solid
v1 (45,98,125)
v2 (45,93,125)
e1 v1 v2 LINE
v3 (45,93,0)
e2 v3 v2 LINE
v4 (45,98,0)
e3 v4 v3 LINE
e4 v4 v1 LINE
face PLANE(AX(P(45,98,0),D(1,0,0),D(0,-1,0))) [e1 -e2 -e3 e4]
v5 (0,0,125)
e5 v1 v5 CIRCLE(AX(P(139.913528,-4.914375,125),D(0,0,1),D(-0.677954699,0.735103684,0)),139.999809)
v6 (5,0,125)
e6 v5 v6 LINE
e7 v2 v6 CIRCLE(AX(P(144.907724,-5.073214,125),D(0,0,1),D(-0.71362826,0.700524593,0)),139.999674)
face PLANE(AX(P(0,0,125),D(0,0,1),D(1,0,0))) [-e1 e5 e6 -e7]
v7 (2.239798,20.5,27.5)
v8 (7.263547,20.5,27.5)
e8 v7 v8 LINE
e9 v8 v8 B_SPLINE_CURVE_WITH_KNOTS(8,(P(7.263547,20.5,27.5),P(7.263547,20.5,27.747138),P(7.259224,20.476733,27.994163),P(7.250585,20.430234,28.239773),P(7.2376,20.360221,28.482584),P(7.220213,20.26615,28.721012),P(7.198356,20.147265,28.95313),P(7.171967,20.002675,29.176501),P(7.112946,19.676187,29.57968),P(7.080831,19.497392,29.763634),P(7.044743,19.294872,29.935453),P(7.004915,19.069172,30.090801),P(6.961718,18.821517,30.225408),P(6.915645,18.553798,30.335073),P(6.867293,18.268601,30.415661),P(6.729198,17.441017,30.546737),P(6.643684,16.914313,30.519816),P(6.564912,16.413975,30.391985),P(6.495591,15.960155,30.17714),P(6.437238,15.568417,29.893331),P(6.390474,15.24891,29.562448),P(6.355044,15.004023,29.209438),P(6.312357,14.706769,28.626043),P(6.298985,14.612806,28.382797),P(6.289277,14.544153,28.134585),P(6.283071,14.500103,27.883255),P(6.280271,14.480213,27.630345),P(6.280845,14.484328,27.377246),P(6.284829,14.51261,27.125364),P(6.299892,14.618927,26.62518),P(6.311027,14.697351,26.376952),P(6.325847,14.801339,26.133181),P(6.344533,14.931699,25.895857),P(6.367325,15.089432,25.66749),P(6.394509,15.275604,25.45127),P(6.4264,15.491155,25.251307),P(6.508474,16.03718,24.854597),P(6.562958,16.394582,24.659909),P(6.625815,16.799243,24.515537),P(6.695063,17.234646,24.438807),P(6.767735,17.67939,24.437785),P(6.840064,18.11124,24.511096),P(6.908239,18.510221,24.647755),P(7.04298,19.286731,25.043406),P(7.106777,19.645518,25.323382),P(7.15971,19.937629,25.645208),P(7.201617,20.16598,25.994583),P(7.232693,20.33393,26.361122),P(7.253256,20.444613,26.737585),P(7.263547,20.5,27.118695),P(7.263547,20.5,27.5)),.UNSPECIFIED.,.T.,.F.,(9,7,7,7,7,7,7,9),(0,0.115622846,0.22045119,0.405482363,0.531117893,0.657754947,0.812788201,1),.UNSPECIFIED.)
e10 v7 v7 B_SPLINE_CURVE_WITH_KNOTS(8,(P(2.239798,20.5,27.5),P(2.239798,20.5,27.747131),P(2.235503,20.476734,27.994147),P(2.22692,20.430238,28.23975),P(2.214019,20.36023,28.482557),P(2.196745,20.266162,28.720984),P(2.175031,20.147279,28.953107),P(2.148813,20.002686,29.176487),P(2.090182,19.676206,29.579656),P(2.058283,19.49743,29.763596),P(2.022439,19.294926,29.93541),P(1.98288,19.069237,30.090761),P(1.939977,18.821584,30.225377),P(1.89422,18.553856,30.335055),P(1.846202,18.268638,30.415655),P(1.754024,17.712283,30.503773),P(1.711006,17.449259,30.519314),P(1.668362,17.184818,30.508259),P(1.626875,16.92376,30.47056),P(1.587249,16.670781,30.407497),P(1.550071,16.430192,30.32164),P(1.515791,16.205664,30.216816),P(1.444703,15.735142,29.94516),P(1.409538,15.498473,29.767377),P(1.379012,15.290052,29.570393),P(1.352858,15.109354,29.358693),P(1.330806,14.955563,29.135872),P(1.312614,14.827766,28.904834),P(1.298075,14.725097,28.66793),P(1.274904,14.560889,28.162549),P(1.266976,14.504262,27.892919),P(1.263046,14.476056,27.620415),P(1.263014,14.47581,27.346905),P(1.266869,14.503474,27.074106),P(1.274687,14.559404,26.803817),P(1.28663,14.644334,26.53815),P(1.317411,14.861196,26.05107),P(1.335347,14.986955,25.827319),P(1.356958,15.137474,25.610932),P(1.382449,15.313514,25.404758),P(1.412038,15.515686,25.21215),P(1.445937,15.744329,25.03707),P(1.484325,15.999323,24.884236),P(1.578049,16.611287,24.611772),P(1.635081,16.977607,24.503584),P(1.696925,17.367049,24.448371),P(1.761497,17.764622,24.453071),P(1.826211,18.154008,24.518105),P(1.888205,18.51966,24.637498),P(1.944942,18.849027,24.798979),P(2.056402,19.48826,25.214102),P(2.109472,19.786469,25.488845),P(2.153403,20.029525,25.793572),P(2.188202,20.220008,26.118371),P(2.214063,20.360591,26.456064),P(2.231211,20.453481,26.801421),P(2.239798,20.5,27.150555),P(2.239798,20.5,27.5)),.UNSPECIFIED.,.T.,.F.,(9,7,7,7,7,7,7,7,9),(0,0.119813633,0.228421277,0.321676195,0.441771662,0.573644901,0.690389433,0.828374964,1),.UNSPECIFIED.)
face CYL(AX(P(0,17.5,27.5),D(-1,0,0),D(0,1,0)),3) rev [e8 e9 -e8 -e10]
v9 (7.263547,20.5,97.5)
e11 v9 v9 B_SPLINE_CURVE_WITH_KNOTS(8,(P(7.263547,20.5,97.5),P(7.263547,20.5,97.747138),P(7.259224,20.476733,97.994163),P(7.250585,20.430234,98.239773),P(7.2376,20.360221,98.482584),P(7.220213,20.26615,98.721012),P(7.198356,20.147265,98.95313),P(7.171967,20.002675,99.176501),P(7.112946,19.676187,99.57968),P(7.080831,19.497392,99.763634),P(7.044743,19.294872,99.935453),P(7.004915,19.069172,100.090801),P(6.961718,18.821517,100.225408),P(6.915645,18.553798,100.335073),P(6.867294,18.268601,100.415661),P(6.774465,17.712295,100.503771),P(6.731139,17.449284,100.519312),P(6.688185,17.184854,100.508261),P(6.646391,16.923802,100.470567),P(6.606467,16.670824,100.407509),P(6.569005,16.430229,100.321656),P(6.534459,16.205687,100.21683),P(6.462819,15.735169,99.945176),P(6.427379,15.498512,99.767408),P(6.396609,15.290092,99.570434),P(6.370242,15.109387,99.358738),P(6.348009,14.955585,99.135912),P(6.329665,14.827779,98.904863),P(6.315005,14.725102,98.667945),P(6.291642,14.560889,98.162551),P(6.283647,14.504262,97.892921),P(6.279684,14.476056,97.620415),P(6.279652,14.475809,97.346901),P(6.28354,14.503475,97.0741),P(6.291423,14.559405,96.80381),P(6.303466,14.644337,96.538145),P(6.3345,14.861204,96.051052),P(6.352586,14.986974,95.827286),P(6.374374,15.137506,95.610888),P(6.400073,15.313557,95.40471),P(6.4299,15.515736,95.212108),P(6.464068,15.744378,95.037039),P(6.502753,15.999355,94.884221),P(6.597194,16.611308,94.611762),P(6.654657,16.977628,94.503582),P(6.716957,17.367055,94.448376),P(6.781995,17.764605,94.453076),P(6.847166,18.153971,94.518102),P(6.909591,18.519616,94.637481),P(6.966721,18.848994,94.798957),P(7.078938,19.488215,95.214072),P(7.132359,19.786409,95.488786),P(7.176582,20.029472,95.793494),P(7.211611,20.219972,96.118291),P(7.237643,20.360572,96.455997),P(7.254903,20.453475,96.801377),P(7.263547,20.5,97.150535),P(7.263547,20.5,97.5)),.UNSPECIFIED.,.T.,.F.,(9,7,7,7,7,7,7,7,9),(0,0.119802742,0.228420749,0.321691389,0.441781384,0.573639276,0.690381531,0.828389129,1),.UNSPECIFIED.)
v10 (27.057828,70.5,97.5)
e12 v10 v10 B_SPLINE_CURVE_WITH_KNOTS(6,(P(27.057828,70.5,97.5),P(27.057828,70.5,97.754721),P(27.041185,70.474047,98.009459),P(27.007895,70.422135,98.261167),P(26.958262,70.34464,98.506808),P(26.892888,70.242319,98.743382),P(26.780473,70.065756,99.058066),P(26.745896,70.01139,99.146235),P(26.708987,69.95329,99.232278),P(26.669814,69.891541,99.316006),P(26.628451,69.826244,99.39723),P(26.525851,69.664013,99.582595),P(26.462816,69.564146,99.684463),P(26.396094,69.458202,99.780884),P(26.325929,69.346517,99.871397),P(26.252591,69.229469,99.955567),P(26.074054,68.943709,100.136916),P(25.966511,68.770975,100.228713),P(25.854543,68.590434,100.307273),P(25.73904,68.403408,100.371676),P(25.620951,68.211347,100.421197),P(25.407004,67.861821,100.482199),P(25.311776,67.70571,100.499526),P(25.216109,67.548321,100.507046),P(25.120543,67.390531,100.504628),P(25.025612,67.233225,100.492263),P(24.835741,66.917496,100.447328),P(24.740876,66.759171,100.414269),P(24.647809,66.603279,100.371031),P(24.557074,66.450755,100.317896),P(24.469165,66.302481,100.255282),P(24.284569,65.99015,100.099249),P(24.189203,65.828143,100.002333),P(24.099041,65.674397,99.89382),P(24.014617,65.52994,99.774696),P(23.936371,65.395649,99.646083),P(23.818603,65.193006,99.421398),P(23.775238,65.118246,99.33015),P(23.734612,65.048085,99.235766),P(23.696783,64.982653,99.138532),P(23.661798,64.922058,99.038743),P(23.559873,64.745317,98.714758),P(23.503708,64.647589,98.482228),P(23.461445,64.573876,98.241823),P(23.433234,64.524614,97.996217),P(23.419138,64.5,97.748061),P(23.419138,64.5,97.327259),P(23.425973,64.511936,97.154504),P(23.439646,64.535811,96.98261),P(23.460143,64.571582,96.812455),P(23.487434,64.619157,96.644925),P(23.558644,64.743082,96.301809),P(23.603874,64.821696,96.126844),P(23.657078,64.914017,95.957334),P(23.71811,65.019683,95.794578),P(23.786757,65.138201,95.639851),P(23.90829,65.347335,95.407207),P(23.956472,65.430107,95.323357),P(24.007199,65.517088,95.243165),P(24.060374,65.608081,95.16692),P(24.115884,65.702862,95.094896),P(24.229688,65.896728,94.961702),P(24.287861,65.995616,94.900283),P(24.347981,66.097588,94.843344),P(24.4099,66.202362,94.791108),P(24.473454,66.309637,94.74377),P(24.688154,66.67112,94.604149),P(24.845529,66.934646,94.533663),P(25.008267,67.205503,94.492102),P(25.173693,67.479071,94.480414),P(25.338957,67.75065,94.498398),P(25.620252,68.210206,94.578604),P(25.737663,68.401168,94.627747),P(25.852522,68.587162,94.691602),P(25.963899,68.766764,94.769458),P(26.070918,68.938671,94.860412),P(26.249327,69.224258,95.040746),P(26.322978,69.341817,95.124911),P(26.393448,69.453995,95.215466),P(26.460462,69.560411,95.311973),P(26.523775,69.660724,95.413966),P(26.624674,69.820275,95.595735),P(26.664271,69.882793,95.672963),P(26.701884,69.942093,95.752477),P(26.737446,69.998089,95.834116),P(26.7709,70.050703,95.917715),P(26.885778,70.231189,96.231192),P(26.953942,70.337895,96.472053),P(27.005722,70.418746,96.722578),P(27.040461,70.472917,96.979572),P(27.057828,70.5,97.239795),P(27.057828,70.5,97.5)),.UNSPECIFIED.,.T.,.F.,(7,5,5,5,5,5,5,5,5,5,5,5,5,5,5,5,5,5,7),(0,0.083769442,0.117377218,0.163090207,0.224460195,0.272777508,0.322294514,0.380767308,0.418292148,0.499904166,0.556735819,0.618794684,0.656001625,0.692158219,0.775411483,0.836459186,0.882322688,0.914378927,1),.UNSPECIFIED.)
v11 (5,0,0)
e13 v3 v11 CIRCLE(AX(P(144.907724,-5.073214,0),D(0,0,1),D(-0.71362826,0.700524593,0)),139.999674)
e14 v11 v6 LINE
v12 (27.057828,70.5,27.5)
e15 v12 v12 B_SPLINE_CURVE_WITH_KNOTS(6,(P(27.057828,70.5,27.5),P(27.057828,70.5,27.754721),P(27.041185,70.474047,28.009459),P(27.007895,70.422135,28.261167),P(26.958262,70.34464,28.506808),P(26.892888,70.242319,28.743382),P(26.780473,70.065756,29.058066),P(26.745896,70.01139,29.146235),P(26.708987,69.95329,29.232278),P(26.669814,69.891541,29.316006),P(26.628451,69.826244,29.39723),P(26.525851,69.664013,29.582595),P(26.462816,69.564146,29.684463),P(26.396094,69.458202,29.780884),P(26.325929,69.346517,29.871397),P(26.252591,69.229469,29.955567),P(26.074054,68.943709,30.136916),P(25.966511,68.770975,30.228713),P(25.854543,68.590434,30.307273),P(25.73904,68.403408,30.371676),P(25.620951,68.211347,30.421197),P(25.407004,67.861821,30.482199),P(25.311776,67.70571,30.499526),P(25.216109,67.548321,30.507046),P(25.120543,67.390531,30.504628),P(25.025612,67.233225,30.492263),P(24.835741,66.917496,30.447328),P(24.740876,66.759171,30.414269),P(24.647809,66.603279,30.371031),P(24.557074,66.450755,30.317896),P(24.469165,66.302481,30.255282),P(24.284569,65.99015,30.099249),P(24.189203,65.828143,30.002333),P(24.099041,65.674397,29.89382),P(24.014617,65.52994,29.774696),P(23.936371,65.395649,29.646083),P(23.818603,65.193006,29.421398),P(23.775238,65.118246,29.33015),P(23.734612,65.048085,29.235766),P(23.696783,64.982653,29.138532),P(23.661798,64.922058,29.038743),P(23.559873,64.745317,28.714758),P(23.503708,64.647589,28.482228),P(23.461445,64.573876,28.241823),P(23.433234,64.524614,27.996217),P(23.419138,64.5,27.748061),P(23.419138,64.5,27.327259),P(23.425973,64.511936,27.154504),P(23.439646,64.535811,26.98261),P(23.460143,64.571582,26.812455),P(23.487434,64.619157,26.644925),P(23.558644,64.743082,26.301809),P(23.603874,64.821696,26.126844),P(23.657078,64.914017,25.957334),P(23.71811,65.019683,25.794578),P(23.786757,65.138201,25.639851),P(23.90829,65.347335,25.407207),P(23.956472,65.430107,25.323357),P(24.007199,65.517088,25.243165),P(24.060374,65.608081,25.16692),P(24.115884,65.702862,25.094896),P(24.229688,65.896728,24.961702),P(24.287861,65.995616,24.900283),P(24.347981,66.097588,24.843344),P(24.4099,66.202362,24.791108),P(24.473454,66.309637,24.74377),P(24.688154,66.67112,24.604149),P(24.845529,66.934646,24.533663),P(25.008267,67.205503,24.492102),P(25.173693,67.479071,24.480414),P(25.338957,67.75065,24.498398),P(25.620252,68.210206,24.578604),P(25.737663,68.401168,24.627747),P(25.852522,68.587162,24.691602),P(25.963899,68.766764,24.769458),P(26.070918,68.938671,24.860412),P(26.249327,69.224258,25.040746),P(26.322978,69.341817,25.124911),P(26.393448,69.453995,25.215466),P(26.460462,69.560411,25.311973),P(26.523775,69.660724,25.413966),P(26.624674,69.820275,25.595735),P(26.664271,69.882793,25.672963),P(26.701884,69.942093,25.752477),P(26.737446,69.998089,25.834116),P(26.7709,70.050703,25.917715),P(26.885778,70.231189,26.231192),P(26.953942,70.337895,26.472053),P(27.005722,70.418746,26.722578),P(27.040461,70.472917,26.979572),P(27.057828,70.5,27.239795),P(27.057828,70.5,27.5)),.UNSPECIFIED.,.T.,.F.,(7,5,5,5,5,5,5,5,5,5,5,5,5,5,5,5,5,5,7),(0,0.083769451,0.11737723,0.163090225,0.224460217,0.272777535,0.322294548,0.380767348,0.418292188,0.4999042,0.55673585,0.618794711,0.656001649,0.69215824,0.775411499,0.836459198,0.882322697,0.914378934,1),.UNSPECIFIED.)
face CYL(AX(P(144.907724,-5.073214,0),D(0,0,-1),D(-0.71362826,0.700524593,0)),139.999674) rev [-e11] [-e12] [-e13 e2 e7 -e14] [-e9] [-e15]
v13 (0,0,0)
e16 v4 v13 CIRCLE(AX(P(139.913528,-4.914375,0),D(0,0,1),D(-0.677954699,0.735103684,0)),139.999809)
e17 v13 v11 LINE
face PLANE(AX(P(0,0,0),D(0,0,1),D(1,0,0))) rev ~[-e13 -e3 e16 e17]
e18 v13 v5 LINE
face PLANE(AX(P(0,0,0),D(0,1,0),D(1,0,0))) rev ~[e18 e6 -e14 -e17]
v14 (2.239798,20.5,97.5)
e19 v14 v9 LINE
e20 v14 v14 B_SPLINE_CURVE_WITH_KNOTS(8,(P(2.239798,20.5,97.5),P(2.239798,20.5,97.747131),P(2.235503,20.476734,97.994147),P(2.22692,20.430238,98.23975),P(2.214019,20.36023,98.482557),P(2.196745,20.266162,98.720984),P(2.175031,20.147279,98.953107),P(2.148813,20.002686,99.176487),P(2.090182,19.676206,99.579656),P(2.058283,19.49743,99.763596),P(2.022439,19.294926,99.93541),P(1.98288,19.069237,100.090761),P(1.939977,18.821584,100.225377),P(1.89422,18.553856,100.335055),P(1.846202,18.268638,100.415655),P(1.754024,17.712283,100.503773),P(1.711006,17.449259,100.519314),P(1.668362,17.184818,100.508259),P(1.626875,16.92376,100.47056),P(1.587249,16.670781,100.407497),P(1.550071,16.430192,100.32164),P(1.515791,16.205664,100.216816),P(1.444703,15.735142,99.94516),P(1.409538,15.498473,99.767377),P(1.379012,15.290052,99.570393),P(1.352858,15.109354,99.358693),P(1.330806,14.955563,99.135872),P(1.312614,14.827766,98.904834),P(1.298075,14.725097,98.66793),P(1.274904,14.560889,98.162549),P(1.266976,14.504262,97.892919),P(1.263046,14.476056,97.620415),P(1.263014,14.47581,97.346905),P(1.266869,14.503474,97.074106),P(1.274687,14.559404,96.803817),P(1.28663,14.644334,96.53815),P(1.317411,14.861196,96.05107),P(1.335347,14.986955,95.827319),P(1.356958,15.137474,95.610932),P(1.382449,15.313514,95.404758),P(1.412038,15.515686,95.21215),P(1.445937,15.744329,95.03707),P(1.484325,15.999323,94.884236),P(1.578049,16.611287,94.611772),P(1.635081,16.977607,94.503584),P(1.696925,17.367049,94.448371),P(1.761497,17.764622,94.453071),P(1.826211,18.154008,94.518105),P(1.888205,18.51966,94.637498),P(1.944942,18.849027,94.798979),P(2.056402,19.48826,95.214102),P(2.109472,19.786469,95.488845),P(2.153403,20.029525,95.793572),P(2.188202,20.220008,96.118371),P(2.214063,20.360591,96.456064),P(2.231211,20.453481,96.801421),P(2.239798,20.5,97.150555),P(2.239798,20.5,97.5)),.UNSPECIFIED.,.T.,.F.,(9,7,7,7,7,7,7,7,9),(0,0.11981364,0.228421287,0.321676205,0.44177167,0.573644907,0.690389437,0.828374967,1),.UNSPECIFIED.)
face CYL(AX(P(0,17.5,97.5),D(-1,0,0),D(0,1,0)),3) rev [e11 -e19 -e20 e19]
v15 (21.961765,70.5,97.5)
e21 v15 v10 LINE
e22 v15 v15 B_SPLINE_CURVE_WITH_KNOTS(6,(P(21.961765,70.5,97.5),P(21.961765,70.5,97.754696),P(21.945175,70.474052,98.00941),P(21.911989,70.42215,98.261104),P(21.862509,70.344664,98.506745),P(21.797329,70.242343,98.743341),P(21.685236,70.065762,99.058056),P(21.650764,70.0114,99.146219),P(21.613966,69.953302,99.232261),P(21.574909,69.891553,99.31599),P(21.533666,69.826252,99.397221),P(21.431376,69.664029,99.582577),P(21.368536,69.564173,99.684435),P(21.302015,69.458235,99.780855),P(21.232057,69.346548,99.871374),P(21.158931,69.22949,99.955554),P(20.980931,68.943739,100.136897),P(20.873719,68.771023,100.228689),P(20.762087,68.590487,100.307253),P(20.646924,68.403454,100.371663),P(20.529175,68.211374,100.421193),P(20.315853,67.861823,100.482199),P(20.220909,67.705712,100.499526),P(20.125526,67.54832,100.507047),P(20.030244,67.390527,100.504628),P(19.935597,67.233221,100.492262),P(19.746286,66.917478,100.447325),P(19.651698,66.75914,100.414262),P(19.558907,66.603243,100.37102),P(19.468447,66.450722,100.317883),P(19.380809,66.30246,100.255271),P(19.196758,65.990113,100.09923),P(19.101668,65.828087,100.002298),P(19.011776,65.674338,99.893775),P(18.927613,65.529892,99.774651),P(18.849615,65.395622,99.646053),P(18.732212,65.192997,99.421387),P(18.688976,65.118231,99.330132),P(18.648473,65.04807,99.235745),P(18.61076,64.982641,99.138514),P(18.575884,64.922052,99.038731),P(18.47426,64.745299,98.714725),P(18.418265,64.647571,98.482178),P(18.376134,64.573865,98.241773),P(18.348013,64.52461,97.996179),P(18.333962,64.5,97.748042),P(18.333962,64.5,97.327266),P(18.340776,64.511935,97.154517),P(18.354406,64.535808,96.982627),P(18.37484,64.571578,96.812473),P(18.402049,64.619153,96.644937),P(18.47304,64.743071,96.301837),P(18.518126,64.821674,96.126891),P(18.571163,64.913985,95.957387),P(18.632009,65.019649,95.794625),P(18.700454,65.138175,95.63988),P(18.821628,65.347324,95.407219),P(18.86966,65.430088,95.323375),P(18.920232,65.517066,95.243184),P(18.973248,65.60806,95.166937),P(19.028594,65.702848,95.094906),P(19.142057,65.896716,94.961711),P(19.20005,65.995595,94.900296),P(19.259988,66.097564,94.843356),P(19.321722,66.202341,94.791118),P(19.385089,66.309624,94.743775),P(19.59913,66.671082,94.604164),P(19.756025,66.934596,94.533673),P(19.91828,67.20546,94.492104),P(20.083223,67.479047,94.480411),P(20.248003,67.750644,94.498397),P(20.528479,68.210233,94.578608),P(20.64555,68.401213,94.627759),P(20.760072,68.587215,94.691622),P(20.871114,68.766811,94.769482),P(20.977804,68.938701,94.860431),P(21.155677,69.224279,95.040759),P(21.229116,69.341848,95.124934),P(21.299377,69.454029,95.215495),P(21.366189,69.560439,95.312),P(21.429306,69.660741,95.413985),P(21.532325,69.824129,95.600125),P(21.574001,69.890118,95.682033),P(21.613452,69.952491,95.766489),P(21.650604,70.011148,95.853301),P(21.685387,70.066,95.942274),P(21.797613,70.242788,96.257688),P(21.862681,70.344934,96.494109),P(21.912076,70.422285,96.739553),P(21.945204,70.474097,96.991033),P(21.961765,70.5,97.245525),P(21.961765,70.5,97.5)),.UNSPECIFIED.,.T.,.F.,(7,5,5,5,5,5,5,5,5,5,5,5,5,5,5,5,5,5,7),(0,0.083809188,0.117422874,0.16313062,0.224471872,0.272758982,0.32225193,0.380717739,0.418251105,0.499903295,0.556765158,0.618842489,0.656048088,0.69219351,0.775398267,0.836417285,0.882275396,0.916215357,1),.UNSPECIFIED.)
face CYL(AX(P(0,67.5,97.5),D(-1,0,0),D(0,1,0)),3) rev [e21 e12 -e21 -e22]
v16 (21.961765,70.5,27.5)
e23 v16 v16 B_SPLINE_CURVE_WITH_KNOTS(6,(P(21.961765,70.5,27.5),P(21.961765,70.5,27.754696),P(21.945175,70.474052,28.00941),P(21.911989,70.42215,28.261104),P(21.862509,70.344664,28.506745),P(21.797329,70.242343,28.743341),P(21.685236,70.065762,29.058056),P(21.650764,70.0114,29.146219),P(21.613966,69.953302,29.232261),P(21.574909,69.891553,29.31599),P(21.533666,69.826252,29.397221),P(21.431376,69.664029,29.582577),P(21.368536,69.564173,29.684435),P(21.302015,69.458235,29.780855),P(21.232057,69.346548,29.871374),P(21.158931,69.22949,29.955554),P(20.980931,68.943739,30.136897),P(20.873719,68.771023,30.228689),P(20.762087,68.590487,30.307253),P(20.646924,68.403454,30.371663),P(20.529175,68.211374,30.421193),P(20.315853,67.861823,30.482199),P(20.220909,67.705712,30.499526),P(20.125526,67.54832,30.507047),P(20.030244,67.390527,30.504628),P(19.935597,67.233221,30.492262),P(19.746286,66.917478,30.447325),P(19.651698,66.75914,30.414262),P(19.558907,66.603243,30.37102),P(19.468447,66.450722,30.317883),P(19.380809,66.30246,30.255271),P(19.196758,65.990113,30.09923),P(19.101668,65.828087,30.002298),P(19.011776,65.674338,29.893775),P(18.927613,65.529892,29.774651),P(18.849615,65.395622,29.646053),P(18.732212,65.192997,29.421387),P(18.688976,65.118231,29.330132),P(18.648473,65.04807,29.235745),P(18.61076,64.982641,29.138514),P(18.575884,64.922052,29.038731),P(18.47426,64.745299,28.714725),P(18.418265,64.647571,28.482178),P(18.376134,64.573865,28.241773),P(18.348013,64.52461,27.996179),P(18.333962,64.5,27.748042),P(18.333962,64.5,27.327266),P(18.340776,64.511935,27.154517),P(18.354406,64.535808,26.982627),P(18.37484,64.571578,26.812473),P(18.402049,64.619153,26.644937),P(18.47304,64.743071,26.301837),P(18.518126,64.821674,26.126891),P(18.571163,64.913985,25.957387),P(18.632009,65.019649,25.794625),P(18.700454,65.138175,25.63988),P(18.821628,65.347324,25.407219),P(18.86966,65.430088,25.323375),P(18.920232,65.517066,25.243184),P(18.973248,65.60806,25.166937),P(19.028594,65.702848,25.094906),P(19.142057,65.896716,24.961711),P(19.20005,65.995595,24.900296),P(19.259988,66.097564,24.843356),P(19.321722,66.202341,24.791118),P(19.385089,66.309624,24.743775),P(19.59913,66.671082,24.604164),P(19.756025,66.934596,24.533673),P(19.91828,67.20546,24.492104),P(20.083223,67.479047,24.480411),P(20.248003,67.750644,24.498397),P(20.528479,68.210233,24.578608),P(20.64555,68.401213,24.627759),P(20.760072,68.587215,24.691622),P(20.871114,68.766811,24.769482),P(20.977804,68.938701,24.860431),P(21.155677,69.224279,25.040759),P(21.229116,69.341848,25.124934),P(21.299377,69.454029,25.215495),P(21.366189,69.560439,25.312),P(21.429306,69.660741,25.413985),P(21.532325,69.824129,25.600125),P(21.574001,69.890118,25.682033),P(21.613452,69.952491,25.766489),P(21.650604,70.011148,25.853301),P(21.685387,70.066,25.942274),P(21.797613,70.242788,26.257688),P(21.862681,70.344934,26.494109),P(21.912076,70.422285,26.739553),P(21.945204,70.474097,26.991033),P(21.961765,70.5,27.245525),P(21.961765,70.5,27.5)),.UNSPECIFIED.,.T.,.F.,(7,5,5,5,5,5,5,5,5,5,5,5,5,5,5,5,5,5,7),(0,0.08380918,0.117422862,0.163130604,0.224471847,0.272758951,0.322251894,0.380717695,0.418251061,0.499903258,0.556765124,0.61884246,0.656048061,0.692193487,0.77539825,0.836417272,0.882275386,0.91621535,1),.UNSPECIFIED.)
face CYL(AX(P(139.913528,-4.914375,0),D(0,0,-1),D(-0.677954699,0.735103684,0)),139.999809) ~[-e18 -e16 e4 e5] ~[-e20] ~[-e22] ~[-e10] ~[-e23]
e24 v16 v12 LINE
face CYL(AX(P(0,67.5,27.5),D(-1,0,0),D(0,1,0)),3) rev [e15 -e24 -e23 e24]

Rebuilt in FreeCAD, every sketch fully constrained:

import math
import FreeCAD as App
import Part
import Sketcher

V = App.Vector

doc = App.newDocument("Part")
body = doc.addObject("PartDesign::Body", "Body")

sketch1 = body.newObject("Sketcher::SketchObject", "Sketch")
sketch1.AttachmentSupport = (doc.getObject("XY_Plane"), [""])
sketch1.MapMode = "FlatFace"
sketch1.addGeometry(Part.LineSegment(V(45, 93, 0), V(45, 98, 0)), False)
sketch1.addGeometry(Part.ArcOfCircle(Part.Circle(V(139.9137, -4.9145, 0), V(0, 0, 1), 140.000017), math.radians(132.684039), math.radians(177.9883)), False)
sketch1.addGeometry(Part.LineSegment(V(0, 0, 0), V(5, 0, 0)), False)
sketch1.addGeometry(Part.ArcOfCircle(Part.Circle(V(144.908, -5.0734, 0), V(0, 0, 1), 140.000001), math.radians(135.530918), math.radians(177.923227)), False)
sketch1.addConstraint(Sketcher.Constraint("Coincident", 0, 2, 1, 1))
sketch1.addConstraint(Sketcher.Constraint("Coincident", 1, 2, 2, 1))
sketch1.addConstraint(Sketcher.Constraint("Coincident", 2, 2, 3, 2))
sketch1.addConstraint(Sketcher.Constraint("Coincident", 3, 1, 0, 1))
sketch1.addConstraint(Sketcher.Constraint("Vertical", 0))
sketch1.addConstraint(Sketcher.Constraint("Horizontal", 2))
sketch1.addConstraint(Sketcher.Constraint("Coincident", 1, 2, -1, 1))
sketch1.addConstraint(Sketcher.Constraint("Equal", 1, 3))
sketch1.addConstraint(Sketcher.Constraint("Equal", 2, 0))
sketch1.addConstraint(Sketcher.Constraint("Radius", 1, 140.0))
sketch1.addConstraint(Sketcher.Constraint("DistanceX", 2, 1, 2, 2, 5.0))
sketch1.addConstraint(Sketcher.Constraint("DistanceX", -1, 1, 0, 2, 45.0))
sketch1.addConstraint(Sketcher.Constraint("DistanceY", -1, 1, 0, 2, 98.0))
pad1 = body.newObject("PartDesign::Pad", "Pad")
pad1.Profile = sketch1
pad1.Length = 125

sketch2 = body.newObject("Sketcher::SketchObject", "Sketch001")
sketch2.AttachmentSupport = (doc.getObject("YZ_Plane"), [""])
sketch2.MapMode = "FlatFace"
sketch2.addGeometry(Part.Circle(V(67.5, 27.5, 0), V(0, 0, 1), 3), False)
sketch2.addGeometry(Part.Circle(V(17.5, 27.5, 0), V(0, 0, 1), 3), False)
sketch2.addGeometry(Part.Circle(V(67.5, 97.5, 0), V(0, 0, 1), 3), False)
sketch2.addGeometry(Part.Circle(V(17.5, 97.5, 0), V(0, 0, 1), 3), False)
sketch2.addConstraint(Sketcher.Constraint("Equal", 0, 1))
sketch2.addConstraint(Sketcher.Constraint("Equal", 1, 2))
sketch2.addConstraint(Sketcher.Constraint("Equal", 2, 3))
sketch2.addConstraint(Sketcher.Constraint("Horizontal", 0, 3, 1, 3))
sketch2.addConstraint(Sketcher.Constraint("Horizontal", 2, 3, 3, 3))
sketch2.addConstraint(Sketcher.Constraint("Vertical", 0, 3, 2, 3))
sketch2.addConstraint(Sketcher.Constraint("Vertical", 1, 3, 3, 3))
sketch2.addConstraint(Sketcher.Constraint("Diameter", 0, 6.0))
sketch2.addConstraint(Sketcher.Constraint("DistanceX", 1, 3, 0, 3, 50.0))
sketch2.addConstraint(Sketcher.Constraint("DistanceY", 0, 3, 2, 3, 70.0))
sketch2.addConstraint(Sketcher.Constraint("DistanceY", -1, 1, 0, 3, 27.5))
sketch2.addConstraint(Sketcher.Constraint("DistanceX", -1, 1, 0, 3, 67.5))
pocket1 = body.newObject("PartDesign::Pocket", "Pocket")
pocket1.Profile = sketch2
pocket1.Type = "ThroughAll"
pocket1.Reversed = True

doc.recompute()
